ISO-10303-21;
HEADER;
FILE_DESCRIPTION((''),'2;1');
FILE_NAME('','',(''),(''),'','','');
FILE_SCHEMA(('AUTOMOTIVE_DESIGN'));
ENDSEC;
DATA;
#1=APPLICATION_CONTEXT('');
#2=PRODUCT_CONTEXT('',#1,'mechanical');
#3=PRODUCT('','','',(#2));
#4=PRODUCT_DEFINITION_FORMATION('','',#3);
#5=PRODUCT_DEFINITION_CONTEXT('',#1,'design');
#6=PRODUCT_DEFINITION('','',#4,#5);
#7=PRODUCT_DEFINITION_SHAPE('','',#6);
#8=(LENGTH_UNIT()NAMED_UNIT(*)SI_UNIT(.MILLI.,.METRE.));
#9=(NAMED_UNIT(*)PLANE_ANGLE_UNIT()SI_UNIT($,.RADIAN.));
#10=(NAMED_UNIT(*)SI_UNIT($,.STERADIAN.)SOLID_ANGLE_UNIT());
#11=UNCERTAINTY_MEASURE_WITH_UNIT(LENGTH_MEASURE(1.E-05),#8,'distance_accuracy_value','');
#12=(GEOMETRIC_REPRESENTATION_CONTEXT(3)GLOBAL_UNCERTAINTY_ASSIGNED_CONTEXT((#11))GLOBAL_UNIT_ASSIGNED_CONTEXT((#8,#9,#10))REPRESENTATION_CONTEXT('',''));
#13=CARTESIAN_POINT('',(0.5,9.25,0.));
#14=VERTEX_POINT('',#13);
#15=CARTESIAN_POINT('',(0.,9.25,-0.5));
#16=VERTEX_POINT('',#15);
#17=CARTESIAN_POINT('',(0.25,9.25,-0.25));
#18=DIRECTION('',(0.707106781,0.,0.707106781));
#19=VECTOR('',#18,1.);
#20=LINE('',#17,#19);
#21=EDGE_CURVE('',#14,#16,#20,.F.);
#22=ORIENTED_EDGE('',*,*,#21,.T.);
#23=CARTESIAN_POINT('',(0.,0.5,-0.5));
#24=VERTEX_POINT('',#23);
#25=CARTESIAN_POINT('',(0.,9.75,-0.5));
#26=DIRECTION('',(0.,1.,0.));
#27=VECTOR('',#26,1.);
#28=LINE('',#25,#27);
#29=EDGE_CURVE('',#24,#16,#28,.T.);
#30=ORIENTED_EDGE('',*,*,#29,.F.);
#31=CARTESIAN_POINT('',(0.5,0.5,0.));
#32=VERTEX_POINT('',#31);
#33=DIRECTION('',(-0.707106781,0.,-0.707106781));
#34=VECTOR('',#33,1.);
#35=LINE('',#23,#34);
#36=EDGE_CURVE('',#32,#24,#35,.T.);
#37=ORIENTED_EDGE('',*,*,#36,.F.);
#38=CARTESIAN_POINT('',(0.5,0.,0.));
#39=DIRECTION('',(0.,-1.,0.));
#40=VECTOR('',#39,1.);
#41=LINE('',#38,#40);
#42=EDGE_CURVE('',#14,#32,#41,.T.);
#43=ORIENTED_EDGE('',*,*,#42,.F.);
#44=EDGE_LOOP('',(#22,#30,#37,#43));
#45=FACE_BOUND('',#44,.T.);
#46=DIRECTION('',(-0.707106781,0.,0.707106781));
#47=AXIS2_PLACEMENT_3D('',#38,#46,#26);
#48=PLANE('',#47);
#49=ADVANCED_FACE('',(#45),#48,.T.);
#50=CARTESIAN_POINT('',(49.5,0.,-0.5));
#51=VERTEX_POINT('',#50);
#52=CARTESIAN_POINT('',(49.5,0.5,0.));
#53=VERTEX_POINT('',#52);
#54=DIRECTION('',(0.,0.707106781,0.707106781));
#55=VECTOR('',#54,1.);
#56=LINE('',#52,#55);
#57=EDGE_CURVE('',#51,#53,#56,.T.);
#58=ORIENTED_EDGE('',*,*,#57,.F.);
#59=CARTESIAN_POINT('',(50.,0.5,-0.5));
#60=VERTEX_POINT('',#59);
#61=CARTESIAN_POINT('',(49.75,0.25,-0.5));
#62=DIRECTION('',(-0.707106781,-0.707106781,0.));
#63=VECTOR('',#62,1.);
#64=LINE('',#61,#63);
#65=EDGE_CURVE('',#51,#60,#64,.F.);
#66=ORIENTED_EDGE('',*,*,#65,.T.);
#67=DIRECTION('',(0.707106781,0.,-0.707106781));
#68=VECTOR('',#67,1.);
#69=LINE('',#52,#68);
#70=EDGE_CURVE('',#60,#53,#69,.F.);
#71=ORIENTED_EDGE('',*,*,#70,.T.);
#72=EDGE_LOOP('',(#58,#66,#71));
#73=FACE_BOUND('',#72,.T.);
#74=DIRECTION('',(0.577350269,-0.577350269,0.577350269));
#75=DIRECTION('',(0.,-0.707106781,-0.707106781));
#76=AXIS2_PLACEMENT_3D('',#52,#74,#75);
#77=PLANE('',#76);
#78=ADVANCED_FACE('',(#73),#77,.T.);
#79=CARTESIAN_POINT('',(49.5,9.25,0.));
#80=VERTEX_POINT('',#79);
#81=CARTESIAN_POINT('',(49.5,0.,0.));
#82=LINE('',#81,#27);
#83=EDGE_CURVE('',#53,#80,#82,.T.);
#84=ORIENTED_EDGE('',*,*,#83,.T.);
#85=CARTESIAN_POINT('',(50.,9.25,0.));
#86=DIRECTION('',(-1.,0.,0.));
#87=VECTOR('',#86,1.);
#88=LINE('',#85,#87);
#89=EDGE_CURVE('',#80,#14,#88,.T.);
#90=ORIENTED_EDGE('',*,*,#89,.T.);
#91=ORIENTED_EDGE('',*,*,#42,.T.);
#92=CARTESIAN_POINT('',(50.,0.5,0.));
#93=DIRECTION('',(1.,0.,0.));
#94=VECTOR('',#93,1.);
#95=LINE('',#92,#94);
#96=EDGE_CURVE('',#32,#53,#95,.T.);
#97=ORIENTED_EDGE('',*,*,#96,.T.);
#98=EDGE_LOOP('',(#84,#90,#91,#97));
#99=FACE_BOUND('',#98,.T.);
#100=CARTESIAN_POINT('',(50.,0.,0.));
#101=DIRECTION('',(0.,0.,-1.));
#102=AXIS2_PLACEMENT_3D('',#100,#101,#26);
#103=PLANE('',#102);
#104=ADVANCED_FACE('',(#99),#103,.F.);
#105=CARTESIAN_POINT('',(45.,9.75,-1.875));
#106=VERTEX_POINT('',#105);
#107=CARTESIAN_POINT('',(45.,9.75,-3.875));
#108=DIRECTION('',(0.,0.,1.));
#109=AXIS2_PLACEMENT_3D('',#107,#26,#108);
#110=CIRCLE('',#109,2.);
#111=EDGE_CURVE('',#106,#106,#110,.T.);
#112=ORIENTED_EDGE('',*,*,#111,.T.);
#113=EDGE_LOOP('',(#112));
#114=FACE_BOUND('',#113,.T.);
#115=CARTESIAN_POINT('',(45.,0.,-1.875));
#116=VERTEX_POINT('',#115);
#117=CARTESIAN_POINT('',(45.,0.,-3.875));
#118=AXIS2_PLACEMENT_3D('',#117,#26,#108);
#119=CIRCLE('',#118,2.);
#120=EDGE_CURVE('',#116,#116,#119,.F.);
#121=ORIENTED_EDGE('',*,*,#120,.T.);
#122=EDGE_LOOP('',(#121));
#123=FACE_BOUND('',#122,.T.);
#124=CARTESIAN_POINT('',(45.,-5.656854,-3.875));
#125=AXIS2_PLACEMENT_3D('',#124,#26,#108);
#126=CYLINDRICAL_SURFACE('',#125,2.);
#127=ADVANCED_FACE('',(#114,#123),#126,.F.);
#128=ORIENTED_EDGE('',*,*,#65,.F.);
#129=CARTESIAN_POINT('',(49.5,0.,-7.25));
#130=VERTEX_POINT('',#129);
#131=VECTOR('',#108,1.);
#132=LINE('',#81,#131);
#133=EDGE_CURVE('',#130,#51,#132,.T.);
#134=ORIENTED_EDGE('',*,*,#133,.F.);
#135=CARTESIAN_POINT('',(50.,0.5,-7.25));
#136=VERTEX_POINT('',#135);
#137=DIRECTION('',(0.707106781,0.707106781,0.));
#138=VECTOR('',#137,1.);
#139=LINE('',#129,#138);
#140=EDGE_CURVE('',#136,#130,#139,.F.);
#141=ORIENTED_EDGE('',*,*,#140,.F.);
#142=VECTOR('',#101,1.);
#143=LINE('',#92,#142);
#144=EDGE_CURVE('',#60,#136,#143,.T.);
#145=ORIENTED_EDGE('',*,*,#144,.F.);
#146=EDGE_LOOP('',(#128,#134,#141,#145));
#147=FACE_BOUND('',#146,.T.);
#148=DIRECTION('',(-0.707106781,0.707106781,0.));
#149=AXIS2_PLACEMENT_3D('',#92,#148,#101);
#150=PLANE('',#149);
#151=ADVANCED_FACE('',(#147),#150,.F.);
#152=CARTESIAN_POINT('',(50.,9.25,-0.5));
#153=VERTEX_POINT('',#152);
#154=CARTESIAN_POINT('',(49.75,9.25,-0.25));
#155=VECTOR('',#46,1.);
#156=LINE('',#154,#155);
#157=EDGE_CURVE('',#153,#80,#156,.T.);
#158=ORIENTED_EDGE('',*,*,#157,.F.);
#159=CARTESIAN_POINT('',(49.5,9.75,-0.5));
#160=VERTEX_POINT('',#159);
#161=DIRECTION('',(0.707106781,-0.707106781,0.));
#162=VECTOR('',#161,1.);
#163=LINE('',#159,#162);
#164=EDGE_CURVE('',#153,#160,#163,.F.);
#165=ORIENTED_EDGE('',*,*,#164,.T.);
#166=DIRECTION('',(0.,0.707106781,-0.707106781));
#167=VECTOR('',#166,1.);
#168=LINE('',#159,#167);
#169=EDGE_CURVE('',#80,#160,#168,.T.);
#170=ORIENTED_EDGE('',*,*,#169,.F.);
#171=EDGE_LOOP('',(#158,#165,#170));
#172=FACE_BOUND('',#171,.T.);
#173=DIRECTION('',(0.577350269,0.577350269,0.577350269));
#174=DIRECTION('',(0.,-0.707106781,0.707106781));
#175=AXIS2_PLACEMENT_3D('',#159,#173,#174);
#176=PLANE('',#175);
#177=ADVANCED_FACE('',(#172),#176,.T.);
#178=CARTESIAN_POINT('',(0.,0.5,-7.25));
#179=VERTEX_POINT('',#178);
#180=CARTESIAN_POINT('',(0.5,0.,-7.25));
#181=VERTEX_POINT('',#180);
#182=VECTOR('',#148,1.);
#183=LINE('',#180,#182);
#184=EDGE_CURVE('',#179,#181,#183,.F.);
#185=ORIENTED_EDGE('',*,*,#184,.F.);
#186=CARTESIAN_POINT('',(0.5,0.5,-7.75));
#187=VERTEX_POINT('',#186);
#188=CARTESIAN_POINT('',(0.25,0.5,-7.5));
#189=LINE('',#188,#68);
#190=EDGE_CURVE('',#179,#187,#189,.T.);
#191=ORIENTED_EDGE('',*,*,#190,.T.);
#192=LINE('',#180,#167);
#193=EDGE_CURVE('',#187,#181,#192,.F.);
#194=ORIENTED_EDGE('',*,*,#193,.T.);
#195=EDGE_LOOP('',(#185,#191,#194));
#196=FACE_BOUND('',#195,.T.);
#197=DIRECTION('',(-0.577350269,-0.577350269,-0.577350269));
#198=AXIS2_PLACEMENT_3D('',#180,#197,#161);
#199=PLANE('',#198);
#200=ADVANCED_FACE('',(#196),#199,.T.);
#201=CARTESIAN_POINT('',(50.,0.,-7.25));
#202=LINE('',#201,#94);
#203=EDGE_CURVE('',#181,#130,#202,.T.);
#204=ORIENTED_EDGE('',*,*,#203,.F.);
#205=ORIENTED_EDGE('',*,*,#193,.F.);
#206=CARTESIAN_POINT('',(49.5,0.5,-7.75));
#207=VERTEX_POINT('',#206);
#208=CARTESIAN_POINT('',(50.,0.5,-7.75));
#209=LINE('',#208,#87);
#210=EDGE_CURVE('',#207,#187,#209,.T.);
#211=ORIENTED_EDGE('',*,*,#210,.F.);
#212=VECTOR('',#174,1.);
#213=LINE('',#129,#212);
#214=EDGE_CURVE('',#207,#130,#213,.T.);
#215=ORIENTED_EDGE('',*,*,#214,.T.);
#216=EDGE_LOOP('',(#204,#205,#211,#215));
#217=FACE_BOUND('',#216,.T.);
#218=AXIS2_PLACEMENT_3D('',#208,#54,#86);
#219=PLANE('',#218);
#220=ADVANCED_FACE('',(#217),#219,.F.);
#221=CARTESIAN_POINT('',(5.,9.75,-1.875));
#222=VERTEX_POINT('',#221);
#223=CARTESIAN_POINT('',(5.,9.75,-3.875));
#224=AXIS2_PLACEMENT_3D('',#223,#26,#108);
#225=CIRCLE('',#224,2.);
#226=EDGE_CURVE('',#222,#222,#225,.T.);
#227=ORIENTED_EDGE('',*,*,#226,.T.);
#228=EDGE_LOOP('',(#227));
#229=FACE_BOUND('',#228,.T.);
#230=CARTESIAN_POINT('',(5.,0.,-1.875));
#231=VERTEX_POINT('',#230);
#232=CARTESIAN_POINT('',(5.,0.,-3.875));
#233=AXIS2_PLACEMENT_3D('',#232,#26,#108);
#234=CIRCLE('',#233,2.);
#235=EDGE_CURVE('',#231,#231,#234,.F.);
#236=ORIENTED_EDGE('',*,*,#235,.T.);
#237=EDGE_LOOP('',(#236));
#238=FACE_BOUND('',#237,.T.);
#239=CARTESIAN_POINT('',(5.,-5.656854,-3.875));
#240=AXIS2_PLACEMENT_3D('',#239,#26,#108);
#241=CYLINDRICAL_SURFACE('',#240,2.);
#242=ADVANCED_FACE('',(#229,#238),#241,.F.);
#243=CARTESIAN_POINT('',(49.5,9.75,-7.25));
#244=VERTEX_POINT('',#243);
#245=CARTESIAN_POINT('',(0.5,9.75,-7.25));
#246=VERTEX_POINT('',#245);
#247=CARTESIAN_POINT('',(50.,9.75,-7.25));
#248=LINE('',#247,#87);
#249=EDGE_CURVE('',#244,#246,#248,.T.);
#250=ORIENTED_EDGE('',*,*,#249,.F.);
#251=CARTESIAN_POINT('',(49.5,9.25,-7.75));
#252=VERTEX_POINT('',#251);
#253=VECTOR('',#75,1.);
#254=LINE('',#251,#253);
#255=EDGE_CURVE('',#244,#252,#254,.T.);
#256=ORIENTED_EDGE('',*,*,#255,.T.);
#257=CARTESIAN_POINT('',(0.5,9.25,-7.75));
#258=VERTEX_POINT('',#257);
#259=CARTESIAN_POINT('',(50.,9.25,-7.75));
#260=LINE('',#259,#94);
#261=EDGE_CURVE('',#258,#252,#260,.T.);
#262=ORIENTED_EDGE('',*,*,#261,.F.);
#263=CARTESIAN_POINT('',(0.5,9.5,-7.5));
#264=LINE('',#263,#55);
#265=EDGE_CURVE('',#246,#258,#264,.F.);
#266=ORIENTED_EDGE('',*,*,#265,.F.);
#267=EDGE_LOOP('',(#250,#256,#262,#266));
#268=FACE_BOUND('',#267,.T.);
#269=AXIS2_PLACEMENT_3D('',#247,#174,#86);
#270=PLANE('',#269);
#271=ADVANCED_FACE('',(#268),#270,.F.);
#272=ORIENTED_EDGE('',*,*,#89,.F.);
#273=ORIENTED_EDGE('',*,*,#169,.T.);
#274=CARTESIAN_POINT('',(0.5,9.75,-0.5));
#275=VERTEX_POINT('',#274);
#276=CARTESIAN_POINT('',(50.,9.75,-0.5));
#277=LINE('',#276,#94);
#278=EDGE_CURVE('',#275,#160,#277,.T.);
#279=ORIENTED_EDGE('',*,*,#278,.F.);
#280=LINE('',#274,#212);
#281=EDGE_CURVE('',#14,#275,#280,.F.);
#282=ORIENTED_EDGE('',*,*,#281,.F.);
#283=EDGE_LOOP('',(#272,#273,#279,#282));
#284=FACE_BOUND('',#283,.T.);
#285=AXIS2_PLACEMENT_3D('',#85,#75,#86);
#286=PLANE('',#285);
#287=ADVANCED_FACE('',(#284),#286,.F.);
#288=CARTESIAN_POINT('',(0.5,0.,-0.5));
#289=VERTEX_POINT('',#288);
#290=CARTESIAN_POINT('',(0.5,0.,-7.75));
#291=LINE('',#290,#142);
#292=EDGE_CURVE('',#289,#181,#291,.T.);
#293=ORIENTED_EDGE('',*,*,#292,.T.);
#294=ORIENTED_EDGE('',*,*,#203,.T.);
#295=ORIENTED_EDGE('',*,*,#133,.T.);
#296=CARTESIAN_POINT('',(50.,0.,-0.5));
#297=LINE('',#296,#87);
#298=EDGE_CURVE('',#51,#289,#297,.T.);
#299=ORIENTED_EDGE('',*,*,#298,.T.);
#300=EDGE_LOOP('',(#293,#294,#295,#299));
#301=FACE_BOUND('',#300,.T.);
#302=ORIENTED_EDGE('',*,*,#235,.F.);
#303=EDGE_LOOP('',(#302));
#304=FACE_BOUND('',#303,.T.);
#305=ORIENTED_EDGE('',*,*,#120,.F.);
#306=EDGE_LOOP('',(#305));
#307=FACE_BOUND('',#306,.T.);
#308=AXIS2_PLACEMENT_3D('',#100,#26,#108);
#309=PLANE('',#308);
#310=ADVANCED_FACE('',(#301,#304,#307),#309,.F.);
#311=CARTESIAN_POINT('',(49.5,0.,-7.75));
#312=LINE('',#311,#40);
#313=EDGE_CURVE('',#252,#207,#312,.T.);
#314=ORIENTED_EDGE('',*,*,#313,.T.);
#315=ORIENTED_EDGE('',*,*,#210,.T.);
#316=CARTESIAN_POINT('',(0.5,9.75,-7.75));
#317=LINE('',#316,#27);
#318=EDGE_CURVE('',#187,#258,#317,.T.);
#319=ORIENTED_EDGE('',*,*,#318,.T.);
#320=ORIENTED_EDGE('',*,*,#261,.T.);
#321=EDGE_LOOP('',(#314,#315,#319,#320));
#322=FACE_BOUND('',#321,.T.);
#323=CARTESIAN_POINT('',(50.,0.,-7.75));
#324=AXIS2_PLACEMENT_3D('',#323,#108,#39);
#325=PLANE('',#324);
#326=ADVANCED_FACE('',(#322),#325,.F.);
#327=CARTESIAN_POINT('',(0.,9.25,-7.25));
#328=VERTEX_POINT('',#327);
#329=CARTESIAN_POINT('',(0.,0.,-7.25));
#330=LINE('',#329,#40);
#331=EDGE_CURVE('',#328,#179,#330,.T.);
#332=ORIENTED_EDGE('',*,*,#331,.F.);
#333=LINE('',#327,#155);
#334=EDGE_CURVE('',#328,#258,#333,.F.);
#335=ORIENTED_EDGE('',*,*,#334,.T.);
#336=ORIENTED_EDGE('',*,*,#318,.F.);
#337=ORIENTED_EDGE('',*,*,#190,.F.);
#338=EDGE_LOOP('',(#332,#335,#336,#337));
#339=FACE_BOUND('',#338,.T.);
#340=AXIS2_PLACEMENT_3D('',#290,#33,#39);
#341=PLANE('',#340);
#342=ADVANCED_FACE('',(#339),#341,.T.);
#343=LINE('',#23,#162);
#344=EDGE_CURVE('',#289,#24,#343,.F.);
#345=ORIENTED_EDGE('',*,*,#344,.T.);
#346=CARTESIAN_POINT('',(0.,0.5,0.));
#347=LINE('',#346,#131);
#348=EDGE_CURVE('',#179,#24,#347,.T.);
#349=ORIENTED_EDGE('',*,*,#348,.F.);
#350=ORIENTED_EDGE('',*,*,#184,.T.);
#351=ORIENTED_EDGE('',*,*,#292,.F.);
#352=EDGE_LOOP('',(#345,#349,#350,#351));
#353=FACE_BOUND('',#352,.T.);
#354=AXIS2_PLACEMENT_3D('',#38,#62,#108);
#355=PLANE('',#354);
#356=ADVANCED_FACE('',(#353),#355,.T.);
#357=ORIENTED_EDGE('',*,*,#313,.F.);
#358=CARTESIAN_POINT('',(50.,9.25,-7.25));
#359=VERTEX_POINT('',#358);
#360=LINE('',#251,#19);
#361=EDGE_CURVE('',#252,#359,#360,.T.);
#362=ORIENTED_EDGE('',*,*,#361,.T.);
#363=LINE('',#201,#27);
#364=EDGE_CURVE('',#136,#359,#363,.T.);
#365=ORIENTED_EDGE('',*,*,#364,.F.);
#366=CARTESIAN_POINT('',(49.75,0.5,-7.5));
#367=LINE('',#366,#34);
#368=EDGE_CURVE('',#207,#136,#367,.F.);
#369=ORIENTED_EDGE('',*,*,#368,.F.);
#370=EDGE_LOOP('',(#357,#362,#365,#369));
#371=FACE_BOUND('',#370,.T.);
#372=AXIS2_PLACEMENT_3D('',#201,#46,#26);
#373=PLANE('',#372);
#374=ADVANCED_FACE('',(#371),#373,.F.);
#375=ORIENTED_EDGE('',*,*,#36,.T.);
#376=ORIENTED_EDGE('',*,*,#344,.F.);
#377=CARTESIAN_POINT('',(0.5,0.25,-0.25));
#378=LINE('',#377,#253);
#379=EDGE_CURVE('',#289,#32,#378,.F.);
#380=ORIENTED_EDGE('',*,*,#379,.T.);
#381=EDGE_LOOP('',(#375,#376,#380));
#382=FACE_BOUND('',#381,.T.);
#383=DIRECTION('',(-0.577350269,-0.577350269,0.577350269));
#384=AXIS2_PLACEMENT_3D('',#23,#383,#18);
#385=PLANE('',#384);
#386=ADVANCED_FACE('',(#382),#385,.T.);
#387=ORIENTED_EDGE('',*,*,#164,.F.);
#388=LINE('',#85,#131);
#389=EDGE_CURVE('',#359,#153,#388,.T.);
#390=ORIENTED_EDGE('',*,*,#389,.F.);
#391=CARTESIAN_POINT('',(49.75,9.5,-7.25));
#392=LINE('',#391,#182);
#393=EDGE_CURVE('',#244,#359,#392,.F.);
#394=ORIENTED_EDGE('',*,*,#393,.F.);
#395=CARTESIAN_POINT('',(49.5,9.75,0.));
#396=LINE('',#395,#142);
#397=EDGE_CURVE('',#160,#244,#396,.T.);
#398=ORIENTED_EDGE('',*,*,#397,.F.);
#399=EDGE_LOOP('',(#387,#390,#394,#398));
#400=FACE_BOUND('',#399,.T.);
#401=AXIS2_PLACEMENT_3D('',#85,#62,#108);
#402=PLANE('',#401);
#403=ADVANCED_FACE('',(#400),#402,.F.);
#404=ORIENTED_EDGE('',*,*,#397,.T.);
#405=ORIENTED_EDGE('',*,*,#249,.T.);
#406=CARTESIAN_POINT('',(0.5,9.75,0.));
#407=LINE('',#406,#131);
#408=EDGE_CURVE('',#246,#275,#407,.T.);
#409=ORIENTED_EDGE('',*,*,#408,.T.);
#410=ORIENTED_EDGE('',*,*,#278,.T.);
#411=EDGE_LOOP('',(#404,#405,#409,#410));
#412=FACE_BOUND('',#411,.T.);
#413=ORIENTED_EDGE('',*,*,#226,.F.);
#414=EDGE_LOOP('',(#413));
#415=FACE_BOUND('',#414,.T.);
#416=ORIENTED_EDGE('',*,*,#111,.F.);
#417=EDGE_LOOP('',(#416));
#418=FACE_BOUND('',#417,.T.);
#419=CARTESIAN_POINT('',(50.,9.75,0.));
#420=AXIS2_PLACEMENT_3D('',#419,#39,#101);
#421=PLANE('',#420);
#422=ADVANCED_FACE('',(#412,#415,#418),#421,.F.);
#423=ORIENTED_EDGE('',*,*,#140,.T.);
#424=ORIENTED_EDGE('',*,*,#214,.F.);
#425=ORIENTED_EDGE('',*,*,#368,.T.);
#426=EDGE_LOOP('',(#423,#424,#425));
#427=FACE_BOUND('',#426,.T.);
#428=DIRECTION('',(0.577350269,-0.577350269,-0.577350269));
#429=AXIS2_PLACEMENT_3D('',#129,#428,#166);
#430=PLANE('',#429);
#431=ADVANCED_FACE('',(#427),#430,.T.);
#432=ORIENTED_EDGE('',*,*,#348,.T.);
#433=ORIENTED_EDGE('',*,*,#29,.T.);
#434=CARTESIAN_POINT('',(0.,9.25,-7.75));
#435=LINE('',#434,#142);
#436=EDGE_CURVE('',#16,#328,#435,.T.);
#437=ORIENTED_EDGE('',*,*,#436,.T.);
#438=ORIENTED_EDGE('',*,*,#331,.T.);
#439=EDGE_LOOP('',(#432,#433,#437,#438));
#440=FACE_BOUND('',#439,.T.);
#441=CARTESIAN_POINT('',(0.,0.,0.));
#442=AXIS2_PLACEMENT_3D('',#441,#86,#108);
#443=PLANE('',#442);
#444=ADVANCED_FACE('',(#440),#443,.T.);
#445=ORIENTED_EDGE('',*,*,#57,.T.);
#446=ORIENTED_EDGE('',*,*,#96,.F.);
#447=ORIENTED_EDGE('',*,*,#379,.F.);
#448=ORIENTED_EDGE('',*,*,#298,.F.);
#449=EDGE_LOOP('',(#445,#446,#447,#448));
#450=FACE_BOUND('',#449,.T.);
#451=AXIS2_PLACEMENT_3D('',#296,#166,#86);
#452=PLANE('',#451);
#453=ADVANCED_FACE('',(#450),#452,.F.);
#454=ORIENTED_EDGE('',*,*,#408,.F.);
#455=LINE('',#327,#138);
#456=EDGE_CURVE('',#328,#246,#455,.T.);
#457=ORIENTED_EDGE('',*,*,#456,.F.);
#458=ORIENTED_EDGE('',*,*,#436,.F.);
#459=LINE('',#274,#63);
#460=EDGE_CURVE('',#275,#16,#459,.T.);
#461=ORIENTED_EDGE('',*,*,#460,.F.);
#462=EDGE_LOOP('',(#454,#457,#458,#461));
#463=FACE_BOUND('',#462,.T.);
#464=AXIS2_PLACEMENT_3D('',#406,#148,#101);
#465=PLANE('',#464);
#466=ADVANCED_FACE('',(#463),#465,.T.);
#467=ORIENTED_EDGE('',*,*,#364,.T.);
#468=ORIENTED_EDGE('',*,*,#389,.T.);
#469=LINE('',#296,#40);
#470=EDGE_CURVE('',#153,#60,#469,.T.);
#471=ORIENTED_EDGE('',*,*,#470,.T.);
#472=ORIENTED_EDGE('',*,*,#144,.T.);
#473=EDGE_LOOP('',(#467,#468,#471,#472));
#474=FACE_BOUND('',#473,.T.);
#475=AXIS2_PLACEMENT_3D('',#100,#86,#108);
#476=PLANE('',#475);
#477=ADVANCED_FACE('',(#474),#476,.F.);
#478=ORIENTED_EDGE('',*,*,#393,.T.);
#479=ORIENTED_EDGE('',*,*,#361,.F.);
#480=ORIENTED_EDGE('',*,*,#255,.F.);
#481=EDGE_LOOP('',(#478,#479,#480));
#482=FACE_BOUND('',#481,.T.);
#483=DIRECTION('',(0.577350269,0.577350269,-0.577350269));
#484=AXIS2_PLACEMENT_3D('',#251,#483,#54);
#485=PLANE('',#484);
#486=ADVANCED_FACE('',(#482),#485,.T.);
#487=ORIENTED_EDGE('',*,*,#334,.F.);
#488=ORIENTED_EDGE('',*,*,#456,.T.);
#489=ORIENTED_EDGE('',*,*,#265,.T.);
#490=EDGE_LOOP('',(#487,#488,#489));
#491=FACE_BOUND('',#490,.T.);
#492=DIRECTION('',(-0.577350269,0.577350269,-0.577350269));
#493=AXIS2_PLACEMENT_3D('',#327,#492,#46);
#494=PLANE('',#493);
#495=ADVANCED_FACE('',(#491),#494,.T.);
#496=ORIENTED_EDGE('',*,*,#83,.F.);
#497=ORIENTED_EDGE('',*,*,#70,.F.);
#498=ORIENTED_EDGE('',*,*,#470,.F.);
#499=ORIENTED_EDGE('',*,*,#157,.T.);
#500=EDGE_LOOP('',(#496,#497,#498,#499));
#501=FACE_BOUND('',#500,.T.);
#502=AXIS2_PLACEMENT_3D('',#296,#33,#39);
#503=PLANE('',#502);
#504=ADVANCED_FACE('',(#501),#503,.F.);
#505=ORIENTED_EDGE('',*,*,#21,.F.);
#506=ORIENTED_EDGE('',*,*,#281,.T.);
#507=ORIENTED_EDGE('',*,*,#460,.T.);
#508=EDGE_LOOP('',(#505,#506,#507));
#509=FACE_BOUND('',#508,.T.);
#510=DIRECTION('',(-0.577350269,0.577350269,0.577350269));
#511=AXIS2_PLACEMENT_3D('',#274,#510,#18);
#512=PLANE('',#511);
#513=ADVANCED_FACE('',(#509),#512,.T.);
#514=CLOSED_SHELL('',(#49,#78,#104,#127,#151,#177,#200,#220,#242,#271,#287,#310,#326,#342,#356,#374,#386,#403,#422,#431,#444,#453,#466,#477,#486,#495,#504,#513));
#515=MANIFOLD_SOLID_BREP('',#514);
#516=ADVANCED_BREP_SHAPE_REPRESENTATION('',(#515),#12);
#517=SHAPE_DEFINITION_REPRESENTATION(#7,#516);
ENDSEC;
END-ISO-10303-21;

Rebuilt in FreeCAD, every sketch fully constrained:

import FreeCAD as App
import Part
import Sketcher
Q = App.Units.Quantity


def edges_at(feature, points):
    """Names of the edges that pass closest to the given points."""
    edges = feature.Shape.Edges
    near = lambda p: min(range(len(edges)), key=lambda i: edges[i].distToShape(Part.Vertex(*p))[0])
    return sorted({f"Edge{near(p) + 1}" for p in points})


def add_polygon(sketch, points):
    """Adds a closed chain of lines whose ends are joined by coincident constraints."""
    first, n = sketch.GeometryCount, len(points)
    for a, b in zip(points, points[1:] + points[:1]):
        sketch.addGeometry(Part.LineSegment(App.Vector(*a, 0), App.Vector(*b, 0)), False)
    for i in range(n):
        sketch.addConstraint(Sketcher.Constraint("Coincident", first + i, 2, first + (i + 1) % n, 1))

doc = App.newDocument("Part")
body = doc.addObject("PartDesign::Body", "Body")

sketch1 = body.newObject("Sketcher::SketchObject", "Sketch")
sketch1.AttachmentSupport = (doc.getObject("YZ_Plane"), [""])
sketch1.MapMode = "FlatFace"
add_polygon(sketch1, [(10, 0), (0, 0), (0, -8), (10, -8)])
sketch1.addConstraint([
    Sketcher.Constraint("Horizontal", 0),
    Sketcher.Constraint("Vertical", 1),
    Sketcher.Constraint("Horizontal", 2),
    Sketcher.Constraint("Vertical", 3),
    Sketcher.Constraint("Coincident", 0, 2, -1, 1),
    Sketcher.Constraint("DistanceX", 0, 2, 0, 1, Q("9.75 mm")),
    Sketcher.Constraint("DistanceY", 1, 2, 1, 1, Q("7.75 mm")),
])
pad1 = body.newObject("PartDesign::Pad", "Pad")
pad1.Profile = sketch1
pad1.Length = 50

sketch2 = body.newObject("Sketcher::SketchObject", "Sketch001")
sketch2.AttachmentSupport = (doc.getObject("XZ_Plane"), [""])
sketch2.MapMode = "FlatFace"
sketch2.AttachmentOffset = App.Placement(App.Vector(0, 0, -9.75), App.Rotation())
sketch2.addGeometry([
    Part.Circle(App.Vector(5, -3.9, 0), App.Vector(0, 0, 1), 2),
    Part.Circle(App.Vector(45, -3.9, 0), App.Vector(0, 0, 1), 2),
], False)
sketch2.addConstraint([
    Sketcher.Constraint("Equal", 0, 1),
    Sketcher.Constraint("Horizontal", 0, 3, 1, 3),
    Sketcher.Constraint("Diameter", 0, Q("4 mm")),
    Sketcher.Constraint("DistanceX", -1, 1, 0, 3, Q("5 mm")),
    Sketcher.Constraint("DistanceX", -1, 1, 1, 3, Q("45 mm")),
    Sketcher.Constraint("DistanceY", 0, 3, -1, 1, Q("3.875 mm")),
])
pocket1 = body.newObject("PartDesign::Pocket", "Pocket")
pocket1.Profile = sketch2
pocket1.Length = 9.75
pocket1.Reversed = True
doc.recompute()

chamfer = body.newObject("PartDesign::Chamfer", "Chamfer")
chamfer.Base = (pocket1, edges_at(pocket1, [
    (50, 4.875, -7.75),
    (50, 9.75, -3.875),
    (50, 4.875, 0),
    (0, 9.75, -3.875),
    (0, 4.875, -7.75),
    (0, 0, -3.875),
    (0, 4.875, 0),
    (25, 9.75, 0),
    (25, 9.75, -7.75),
    (25, 0, -7.75),
    (25, 0, 0),
    (50, 0, -3.875),
]))
chamfer.Size = 0.5

doc.recompute()
